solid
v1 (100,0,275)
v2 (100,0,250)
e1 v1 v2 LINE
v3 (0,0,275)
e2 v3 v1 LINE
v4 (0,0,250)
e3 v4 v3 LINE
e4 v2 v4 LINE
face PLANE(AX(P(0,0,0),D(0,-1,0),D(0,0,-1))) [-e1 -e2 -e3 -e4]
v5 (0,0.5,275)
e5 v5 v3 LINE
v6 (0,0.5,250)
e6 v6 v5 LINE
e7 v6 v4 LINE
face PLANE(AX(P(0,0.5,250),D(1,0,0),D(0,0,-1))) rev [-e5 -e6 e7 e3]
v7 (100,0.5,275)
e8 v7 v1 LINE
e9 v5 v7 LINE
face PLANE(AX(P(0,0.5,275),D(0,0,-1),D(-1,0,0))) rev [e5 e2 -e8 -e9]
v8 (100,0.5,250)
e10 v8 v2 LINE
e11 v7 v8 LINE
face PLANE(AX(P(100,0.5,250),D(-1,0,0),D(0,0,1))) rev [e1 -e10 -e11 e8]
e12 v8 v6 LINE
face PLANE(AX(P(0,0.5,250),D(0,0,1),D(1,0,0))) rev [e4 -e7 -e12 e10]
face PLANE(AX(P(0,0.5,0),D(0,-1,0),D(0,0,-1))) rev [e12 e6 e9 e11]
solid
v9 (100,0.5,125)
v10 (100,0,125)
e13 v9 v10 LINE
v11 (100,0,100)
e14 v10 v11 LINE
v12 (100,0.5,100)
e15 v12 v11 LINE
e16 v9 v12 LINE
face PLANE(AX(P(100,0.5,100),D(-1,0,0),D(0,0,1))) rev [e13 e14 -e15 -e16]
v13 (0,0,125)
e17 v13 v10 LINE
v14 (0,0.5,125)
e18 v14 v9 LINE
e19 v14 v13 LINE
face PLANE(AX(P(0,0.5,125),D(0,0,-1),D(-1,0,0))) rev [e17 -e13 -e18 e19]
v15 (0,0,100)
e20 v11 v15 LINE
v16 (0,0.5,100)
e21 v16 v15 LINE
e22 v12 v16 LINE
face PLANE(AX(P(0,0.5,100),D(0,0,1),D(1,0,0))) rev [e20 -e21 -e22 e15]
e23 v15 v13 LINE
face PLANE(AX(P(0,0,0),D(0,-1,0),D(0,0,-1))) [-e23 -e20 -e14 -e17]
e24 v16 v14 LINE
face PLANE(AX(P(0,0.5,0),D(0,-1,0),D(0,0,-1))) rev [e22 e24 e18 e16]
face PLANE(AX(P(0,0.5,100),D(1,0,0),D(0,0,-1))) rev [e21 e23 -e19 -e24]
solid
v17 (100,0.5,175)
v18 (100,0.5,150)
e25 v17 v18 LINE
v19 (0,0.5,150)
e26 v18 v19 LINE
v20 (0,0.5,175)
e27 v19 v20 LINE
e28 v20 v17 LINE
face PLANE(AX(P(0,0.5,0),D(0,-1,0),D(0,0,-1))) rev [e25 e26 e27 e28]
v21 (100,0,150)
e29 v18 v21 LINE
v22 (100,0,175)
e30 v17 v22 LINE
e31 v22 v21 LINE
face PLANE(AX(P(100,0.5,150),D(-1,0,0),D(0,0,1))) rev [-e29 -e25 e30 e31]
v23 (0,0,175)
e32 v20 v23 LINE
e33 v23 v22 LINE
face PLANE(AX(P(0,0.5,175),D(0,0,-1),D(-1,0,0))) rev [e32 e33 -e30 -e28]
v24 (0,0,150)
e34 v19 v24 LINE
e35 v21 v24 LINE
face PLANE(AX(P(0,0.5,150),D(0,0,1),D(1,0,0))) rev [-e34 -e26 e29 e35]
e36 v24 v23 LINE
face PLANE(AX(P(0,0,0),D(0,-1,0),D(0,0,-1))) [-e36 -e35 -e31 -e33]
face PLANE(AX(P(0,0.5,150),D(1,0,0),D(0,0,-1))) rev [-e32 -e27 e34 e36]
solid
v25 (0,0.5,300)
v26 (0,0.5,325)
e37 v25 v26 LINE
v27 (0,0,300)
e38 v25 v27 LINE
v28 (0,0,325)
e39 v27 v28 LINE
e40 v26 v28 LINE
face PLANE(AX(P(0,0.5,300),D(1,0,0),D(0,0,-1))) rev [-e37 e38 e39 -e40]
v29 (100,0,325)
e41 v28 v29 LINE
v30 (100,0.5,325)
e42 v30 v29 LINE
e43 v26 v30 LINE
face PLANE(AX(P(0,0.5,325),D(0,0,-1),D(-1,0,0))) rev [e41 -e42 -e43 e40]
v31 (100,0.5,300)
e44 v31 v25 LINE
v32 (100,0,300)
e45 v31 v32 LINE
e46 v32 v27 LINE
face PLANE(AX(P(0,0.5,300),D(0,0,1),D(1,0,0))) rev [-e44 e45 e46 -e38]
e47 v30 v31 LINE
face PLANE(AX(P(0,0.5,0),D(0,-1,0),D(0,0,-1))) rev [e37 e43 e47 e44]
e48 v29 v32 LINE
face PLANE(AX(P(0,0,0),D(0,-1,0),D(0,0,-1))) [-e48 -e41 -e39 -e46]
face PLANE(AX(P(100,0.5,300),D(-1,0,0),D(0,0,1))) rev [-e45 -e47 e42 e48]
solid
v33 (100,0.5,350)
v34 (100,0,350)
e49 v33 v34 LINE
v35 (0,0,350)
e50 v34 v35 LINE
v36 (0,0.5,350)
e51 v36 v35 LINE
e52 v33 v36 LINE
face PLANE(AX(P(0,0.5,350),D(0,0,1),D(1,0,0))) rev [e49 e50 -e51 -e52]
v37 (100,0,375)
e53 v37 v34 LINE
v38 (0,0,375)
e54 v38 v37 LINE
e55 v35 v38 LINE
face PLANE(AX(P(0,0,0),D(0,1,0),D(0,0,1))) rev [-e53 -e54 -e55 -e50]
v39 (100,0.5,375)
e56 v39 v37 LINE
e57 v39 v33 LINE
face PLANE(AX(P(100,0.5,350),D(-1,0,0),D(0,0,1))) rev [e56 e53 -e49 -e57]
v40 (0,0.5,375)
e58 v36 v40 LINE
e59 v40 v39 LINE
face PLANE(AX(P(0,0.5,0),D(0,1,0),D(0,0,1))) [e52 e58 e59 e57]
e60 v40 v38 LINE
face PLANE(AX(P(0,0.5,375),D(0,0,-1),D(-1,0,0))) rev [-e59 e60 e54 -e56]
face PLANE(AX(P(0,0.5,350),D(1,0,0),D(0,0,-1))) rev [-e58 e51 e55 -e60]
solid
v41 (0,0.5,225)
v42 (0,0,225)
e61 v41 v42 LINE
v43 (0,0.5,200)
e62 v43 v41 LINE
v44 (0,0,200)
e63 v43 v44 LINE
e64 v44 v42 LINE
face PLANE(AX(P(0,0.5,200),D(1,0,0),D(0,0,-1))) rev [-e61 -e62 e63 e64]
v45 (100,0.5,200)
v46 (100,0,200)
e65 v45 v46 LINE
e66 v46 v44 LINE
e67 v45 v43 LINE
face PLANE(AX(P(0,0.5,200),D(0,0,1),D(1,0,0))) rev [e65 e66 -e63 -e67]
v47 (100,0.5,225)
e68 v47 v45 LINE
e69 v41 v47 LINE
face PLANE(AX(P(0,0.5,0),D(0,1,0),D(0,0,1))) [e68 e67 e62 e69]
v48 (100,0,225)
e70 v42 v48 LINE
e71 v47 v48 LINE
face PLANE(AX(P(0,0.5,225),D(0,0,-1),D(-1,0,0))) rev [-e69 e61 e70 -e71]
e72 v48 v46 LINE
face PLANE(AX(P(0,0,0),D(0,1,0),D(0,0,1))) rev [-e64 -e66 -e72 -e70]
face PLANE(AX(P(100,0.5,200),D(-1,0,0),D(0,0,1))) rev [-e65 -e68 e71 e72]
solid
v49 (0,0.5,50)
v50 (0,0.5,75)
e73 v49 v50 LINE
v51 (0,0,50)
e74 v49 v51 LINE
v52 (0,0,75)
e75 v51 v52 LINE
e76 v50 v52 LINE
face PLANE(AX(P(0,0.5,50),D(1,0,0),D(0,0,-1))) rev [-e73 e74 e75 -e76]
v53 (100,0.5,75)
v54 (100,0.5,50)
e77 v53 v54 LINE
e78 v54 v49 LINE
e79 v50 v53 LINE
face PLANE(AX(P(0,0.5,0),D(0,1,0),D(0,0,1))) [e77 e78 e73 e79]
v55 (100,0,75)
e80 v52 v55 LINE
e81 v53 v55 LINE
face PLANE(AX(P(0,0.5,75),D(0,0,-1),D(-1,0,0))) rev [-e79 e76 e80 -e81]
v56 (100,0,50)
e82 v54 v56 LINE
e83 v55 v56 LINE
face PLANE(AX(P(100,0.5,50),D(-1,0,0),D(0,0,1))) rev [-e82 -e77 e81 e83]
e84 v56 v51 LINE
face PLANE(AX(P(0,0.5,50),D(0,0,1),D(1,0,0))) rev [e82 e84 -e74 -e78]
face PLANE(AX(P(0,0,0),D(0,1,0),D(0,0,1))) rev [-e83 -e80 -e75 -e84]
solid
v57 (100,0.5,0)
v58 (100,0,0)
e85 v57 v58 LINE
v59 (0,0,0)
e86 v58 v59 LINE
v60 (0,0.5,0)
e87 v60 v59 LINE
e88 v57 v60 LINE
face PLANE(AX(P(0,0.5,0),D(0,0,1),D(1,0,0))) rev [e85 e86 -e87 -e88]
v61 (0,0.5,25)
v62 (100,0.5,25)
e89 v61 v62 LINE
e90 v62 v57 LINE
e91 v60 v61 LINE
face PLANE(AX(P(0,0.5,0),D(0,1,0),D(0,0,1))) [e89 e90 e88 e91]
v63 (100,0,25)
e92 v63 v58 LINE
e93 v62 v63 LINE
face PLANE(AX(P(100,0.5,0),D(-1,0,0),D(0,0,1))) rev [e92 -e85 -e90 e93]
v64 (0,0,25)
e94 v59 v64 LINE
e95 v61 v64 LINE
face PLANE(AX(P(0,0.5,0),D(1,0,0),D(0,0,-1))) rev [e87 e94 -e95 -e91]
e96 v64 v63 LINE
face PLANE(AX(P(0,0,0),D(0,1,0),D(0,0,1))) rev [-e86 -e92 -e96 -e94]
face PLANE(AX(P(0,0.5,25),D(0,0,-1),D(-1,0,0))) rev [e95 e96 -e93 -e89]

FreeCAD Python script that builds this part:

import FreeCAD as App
import Part
import Sketcher

doc = App.newDocument("Part")
body = doc.addObject("PartDesign::Body", "Body")

# Sketch on XZ plane
sketch1 = body.newObject("Sketcher::SketchObject", "Sketch")
sketch1.AttachmentSupport = (doc.getObject("XZ_Plane"), [""])
sketch1.MapMode = "FlatFace"
sketch1.addGeometry(Part.LineSegment(App.Vector(0, 50, 0), App.Vector(0, 75, 0)), False)
sketch1.addGeometry(Part.LineSegment(App.Vector(0, 75, 0), App.Vector(100, 75, 0)), False)
sketch1.addGeometry(Part.LineSegment(App.Vector(100, 75, 0), App.Vector(100, 50, 0)), False)
sketch1.addGeometry(Part.LineSegment(App.Vector(100, 50, 0), App.Vector(0, 50, 0)), False)
sketch1.addConstraint(Sketcher.Constraint("Coincident", 0, 2, 1, 1))
sketch1.addConstraint(Sketcher.Constraint("Coincident", 1, 2, 2, 1))
sketch1.addConstraint(Sketcher.Constraint("Coincident", 2, 2, 3, 1))
sketch1.addConstraint(Sketcher.Constraint("Coincident", 3, 2, 0, 1))
sketch1.addConstraint(Sketcher.Constraint("Vertical", 0))
sketch1.addConstraint(Sketcher.Constraint("Horizontal", 1))
sketch1.addConstraint(Sketcher.Constraint("Vertical", 2))
sketch1.addConstraint(Sketcher.Constraint("Horizontal", 3))
sketch1.addConstraint(Sketcher.Constraint("PointOnObject", 0, 2, -2))
sketch1.addConstraint(Sketcher.Constraint("DistanceX", 1, 1, 1, 2, 100.0))
sketch1.addConstraint(Sketcher.Constraint("DistanceY", 0, 1, 0, 2, 25.0))
sketch1.addConstraint(Sketcher.Constraint("DistanceY", -1, 1, 0, 2, 75.0))
pad1 = body.newObject("PartDesign::Pad", "Pad")
pad1.Profile = sketch1
pad1.Length = 0.5
pad1.Reversed = True
body2 = doc.addObject("PartDesign::Body", "Body001")

# Sketch on XZ plane
sketch2 = body2.newObject("Sketcher::SketchObject", "Sketch001")
sketch2.AttachmentSupport = (doc.getObject("XZ_Plane001"), [""])
sketch2.MapMode = "FlatFace"
sketch2.addGeometry(Part.LineSegment(App.Vector(0, 0, 0), App.Vector(0, 25, 0)), False)
sketch2.addGeometry(Part.LineSegment(App.Vector(0, 25, 0), App.Vector(100, 25, 0)), False)
sketch2.addGeometry(Part.LineSegment(App.Vector(100, 25, 0), App.Vector(100, 0, 0)), False)
sketch2.addGeometry(Part.LineSegment(App.Vector(100, 0, 0), App.Vector(0, 0, 0)), False)
sketch2.addConstraint(Sketcher.Constraint("Coincident", 0, 2, 1, 1))
sketch2.addConstraint(Sketcher.Constraint("Coincident", 1, 2, 2, 1))
sketch2.addConstraint(Sketcher.Constraint("Coincident", 2, 2, 3, 1))
sketch2.addConstraint(Sketcher.Constraint("Coincident", 3, 2, 0, 1))
sketch2.addConstraint(Sketcher.Constraint("Vertical", 0))
sketch2.addConstraint(Sketcher.Constraint("Horizontal", 1))
sketch2.addConstraint(Sketcher.Constraint("Vertical", 2))
sketch2.addConstraint(Sketcher.Constraint("Horizontal", 3))
sketch2.addConstraint(Sketcher.Constraint("Coincident", 3, 2, -1, 1))
sketch2.addConstraint(Sketcher.Constraint("DistanceX", 1, 1, 1, 2, 100.0))
sketch2.addConstraint(Sketcher.Constraint("DistanceY", 0, 1, 0, 2, 25.0))
pad2 = body2.newObject("PartDesign::Pad", "Pad001")
pad2.Profile = sketch2
pad2.Length = 0.5
pad2.Reversed = True
body3 = doc.addObject("PartDesign::Body", "Body002")

# Sketch on XZ plane
sketch3 = body3.newObject("Sketcher::SketchObject", "Sketch002")
sketch3.AttachmentSupport = (doc.getObject("XZ_Plane002"), [""])
sketch3.MapMode = "FlatFace"
sketch3.addGeometry(Part.LineSegment(App.Vector(0, 150, 0), App.Vector(0, 175, 0)), False)
sketch3.addGeometry(Part.LineSegment(App.Vector(0, 175, 0), App.Vector(100, 175, 0)), False)
sketch3.addGeometry(Part.LineSegment(App.Vector(100, 175, 0), App.Vector(100, 150, 0)), False)
sketch3.addGeometry(Part.LineSegment(App.Vector(100, 150, 0), App.Vector(0, 150, 0)), False)
sketch3.addConstraint(Sketcher.Constraint("Coincident", 0, 2, 1, 1))
sketch3.addConstraint(Sketcher.Constraint("Coincident", 1, 2, 2, 1))
sketch3.addConstraint(Sketcher.Constraint("Coincident", 2, 2, 3, 1))
sketch3.addConstraint(Sketcher.Constraint("Coincident", 3, 2, 0, 1))
sketch3.addConstraint(Sketcher.Constraint("Vertical", 0))
sketch3.addConstraint(Sketcher.Constraint("Horizontal", 1))
sketch3.addConstraint(Sketcher.Constraint("Vertical", 2))
sketch3.addConstraint(Sketcher.Constraint("Horizontal", 3))
sketch3.addConstraint(Sketcher.Constraint("PointOnObject", 0, 2, -2))
sketch3.addConstraint(Sketcher.Constraint("DistanceX", 1, 1, 1, 2, 100.0))
sketch3.addConstraint(Sketcher.Constraint("DistanceY", 0, 1, 0, 2, 25.0))
sketch3.addConstraint(Sketcher.Constraint("DistanceY", -1, 1, 0, 2, 175.0))
pad3 = body3.newObject("PartDesign::Pad", "Pad002")
pad3.Profile = sketch3
pad3.Length = 0.5
pad3.Reversed = True
body4 = doc.addObject("PartDesign::Body", "Body003")

# Sketch on XZ plane
sketch4 = body4.newObject("Sketcher::SketchObject", "Sketch003")
sketch4.AttachmentSupport = (doc.getObject("XZ_Plane003"), [""])
sketch4.MapMode = "FlatFace"
sketch4.addGeometry(Part.LineSegment(App.Vector(0, 100, 0), App.Vector(0, 125, 0)), False)
sketch4.addGeometry(Part.LineSegment(App.Vector(0, 125, 0), App.Vector(100, 125, 0)), False)
sketch4.addGeometry(Part.LineSegment(App.Vector(100, 125, 0), App.Vector(100, 100, 0)), False)
sketch4.addGeometry(Part.LineSegment(App.Vector(100, 100, 0), App.Vector(0, 100, 0)), False)
sketch4.addConstraint(Sketcher.Constraint("Coincident", 0, 2, 1, 1))
sketch4.addConstraint(Sketcher.Constraint("Coincident", 1, 2, 2, 1))
sketch4.addConstraint(Sketcher.Constraint("Coincident", 2, 2, 3, 1))
sketch4.addConstraint(Sketcher.Constraint("Coincident", 3, 2, 0, 1))
sketch4.addConstraint(Sketcher.Constraint("Vertical", 0))
sketch4.addConstraint(Sketcher.Constraint("Horizontal", 1))
sketch4.addConstraint(Sketcher.Constraint("Vertical", 2))
sketch4.addConstraint(Sketcher.Constraint("Horizontal", 3))
sketch4.addConstraint(Sketcher.Constraint("PointOnObject", 0, 2, -2))
sketch4.addConstraint(Sketcher.Constraint("DistanceX", 1, 1, 1, 2, 100.0))
sketch4.addConstraint(Sketcher.Constraint("DistanceY", 0, 1, 0, 2, 25.0))
sketch4.addConstraint(Sketcher.Constraint("DistanceY", -1, 1, 0, 2, 125.0))
pad4 = body4.newObject("PartDesign::Pad", "Pad003")
pad4.Profile = sketch4
pad4.Length = 0.5
pad4.Reversed = True
body5 = doc.addObject("PartDesign::Body", "Body004")

# Sketch on XZ plane
sketch5 = body5.newObject("Sketcher::SketchObject", "Sketch004")
sketch5.AttachmentSupport = (doc.getObject("XZ_Plane004"), [""])
sketch5.MapMode = "FlatFace"
sketch5.addGeometry(Part.LineSegment(App.Vector(0, 350, 0), App.Vector(0, 375, 0)), False)
sketch5.addGeometry(Part.LineSegment(App.Vector(0, 375, 0), App.Vector(100, 375, 0)), False)
sketch5.addGeometry(Part.LineSegment(App.Vector(100, 375, 0), App.Vector(100, 350, 0)), False)
sketch5.addGeometry(Part.LineSegment(App.Vector(100, 350, 0), App.Vector(0, 350, 0)), False)
sketch5.addConstraint(Sketcher.Constraint("Coincident", 0, 2, 1, 1))
sketch5.addConstraint(Sketcher.Constraint("Coincident", 1, 2, 2, 1))
sketch5.addConstraint(Sketcher.Constraint("Coincident", 2, 2, 3, 1))
sketch5.addConstraint(Sketcher.Constraint("Coincident", 3, 2, 0, 1))
sketch5.addConstraint(Sketcher.Constraint("Vertical", 0))
sketch5.addConstraint(Sketcher.Constraint("Horizontal", 1))
sketch5.addConstraint(Sketcher.Constraint("Vertical", 2))
sketch5.addConstraint(Sketcher.Constraint("Horizontal", 3))
sketch5.addConstraint(Sketcher.Constraint("PointOnObject", 0, 2, -2))
sketch5.addConstraint(Sketcher.Constraint("DistanceX", 1, 1, 1, 2, 100.0))
sketch5.addConstraint(Sketcher.Constraint("DistanceY", 0, 1, 0, 2, 25.0))
sketch5.addConstraint(Sketcher.Constraint("DistanceY", -1, 1, 0, 2, 375.0))
pad5 = body5.newObject("PartDesign::Pad", "Pad004")
pad5.Profile = sketch5
pad5.Length = 0.5
pad5.Reversed = True
body6 = doc.addObject("PartDesign::Body", "Body005")

# Sketch on XZ plane
sketch6 = body6.newObject("Sketcher::SketchObject", "Sketch005")
sketch6.AttachmentSupport = (doc.getObject("XZ_Plane005"), [""])
sketch6.MapMode = "FlatFace"
sketch6.addGeometry(Part.LineSegment(App.Vector(0, 200, 0), App.Vector(0, 225, 0)), False)
sketch6.addGeometry(Part.LineSegment(App.Vector(0, 225, 0), App.Vector(100, 225, 0)), False)
sketch6.addGeometry(Part.LineSegment(App.Vector(100, 225, 0), App.Vector(100, 200, 0)), False)
sketch6.addGeometry(Part.LineSegment(App.Vector(100, 200, 0), App.Vector(0, 200, 0)), False)
sketch6.addConstraint(Sketcher.Constraint("Coincident", 0, 2, 1, 1))
sketch6.addConstraint(Sketcher.Constraint("Coincident", 1, 2, 2, 1))
sketch6.addConstraint(Sketcher.Constraint("Coincident", 2, 2, 3, 1))
sketch6.addConstraint(Sketcher.Constraint("Coincident", 3, 2, 0, 1))
sketch6.addConstraint(Sketcher.Constraint("Vertical", 0))
sketch6.addConstraint(Sketcher.Constraint("Horizontal", 1))
sketch6.addConstraint(Sketcher.Constraint("Vertical", 2))
sketch6.addConstraint(Sketcher.Constraint("Horizontal", 3))
sketch6.addConstraint(Sketcher.Constraint("PointOnObject", 0, 2, -2))
sketch6.addConstraint(Sketcher.Constraint("DistanceX", 1, 1, 1, 2, 100.0))
sketch6.addConstraint(Sketcher.Constraint("DistanceY", 0, 1, 0, 2, 25.0))
sketch6.addConstraint(Sketcher.Constraint("DistanceY", -1, 1, 0, 2, 225.0))
pad6 = body6.newObject("PartDesign::Pad", "Pad005")
pad6.Profile = sketch6
pad6.Length = 0.5
pad6.Reversed = True
body7 = doc.addObject("PartDesign::Body", "Body006")

# Sketch on XZ plane
sketch7 = body7.newObject("Sketcher::SketchObject", "Sketch006")
sketch7.AttachmentSupport = (doc.getObject("XZ_Plane006"), [""])
sketch7.MapMode = "FlatFace"
sketch7.addGeometry(Part.LineSegment(App.Vector(0, 250, 0), App.Vector(0, 275, 0)), False)
sketch7.addGeometry(Part.LineSegment(App.Vector(0, 275, 0), App.Vector(100, 275, 0)), False)
sketch7.addGeometry(Part.LineSegment(App.Vector(100, 275, 0), App.Vector(100, 250, 0)), False)
sketch7.addGeometry(Part.LineSegment(App.Vector(100, 250, 0), App.Vector(0, 250, 0)), False)
sketch7.addConstraint(Sketcher.Constraint("Coincident", 0, 2, 1, 1))
sketch7.addConstraint(Sketcher.Constraint("Coincident", 1, 2, 2, 1))
sketch7.addConstraint(Sketcher.Constraint("Coincident", 2, 2, 3, 1))
sketch7.addConstraint(Sketcher.Constraint("Coincident", 3, 2, 0, 1))
sketch7.addConstraint(Sketcher.Constraint("Vertical", 0))
sketch7.addConstraint(Sketcher.Constraint("Horizontal", 1))
sketch7.addConstraint(Sketcher.Constraint("Vertical", 2))
sketch7.addConstraint(Sketcher.Constraint("Horizontal", 3))
sketch7.addConstraint(Sketcher.Constraint("PointOnObject", 0, 2, -2))
sketch7.addConstraint(Sketcher.Constraint("DistanceX", 1, 1, 1, 2, 100.0))
sketch7.addConstraint(Sketcher.Constraint("DistanceY", 0, 1, 0, 2, 25.0))
sketch7.addConstraint(Sketcher.Constraint("DistanceY", -1, 1, 0, 2, 275.0))
pad7 = body7.newObject("PartDesign::Pad", "Pad006")
pad7.Profile = sketch7
pad7.Length = 0.5
pad7.Reversed = True
body8 = doc.addObject("PartDesign::Body", "Body007")

# Sketch on XZ plane
sketch8 = body8.newObject("Sketcher::SketchObject", "Sketch007")
sketch8.AttachmentSupport = (doc.getObject("XZ_Plane007"), [""])
sketch8.MapMode = "FlatFace"
sketch8.addGeometry(Part.LineSegment(App.Vector(0, 300, 0), App.Vector(0, 325, 0)), False)
sketch8.addGeometry(Part.LineSegment(App.Vector(0, 325, 0), App.Vector(100, 325, 0)), False)
sketch8.addGeometry(Part.LineSegment(App.Vector(100, 325, 0), App.Vector(100, 300, 0)), False)
sketch8.addGeometry(Part.LineSegment(App.Vector(100, 300, 0), App.Vector(0, 300, 0)), False)
sketch8.addConstraint(Sketcher.Constraint("Coincident", 0, 2, 1, 1))
sketch8.addConstraint(Sketcher.Constraint("Coincident", 1, 2, 2, 1))
sketch8.addConstraint(Sketcher.Constraint("Coincident", 2, 2, 3, 1))
sketch8.addConstraint(Sketcher.Constraint("Coincident", 3, 2, 0, 1))
sketch8.addConstraint(Sketcher.Constraint("Vertical", 0))
sketch8.addConstraint(Sketcher.Constraint("Horizontal", 1))
sketch8.addConstraint(Sketcher.Constraint("Vertical", 2))
sketch8.addConstraint(Sketcher.Constraint("Horizontal", 3))
sketch8.addConstraint(Sketcher.Constraint("PointOnObject", 0, 2, -2))
sketch8.addConstraint(Sketcher.Constraint("DistanceX", 1, 1, 1, 2, 100.0))
sketch8.addConstraint(Sketcher.Constraint("DistanceY", 0, 1, 0, 2, 25.0))
sketch8.addConstraint(Sketcher.Constraint("DistanceY", -1, 1, 0, 2, 325.0))
pad8 = body8.newObject("PartDesign::Pad", "Pad007")
pad8.Profile = sketch8
pad8.Length = 0.5
pad8.Reversed = True

doc.recompute()
